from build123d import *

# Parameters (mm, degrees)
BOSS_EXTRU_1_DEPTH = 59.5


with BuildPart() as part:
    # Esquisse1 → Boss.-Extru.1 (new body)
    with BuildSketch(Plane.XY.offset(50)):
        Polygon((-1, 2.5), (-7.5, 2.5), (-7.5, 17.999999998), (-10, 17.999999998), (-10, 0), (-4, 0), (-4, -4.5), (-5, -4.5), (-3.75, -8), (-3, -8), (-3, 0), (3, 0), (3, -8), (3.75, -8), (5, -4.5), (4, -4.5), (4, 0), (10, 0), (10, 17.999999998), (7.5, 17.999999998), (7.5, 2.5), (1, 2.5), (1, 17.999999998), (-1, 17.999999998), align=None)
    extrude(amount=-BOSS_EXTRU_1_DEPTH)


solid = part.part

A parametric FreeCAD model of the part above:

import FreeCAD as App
import Part
import Sketcher

doc = App.newDocument("Part")
body = doc.addObject("PartDesign::Body", "Body")

sketch1 = doc.addObject("Sketcher::SketchObject", "Sketch")
body.addObject(sketch1)
sketch1.AttachmentSupport = (doc.XY_Plane, [""])
sketch1.MapMode = "FlatFace"
sketch1.AttachmentOffset = App.Placement(App.Vector(0, 0, 50), App.Rotation())
sketch1.addGeometry(Part.LineSegment(App.Vector(-1, 2.5, 0), App.Vector(-7.5, 2.5, 0)), False)
sketch1.addGeometry(Part.LineSegment(App.Vector(-7.5, 2.5, 0), App.Vector(-7.5, 18, 0)), False)
sketch1.addGeometry(Part.LineSegment(App.Vector(-7.5, 18, 0), App.Vector(-10, 18, 0)), False)
sketch1.addGeometry(Part.LineSegment(App.Vector(-10, 18, 0), App.Vector(-10, 0, 0)), False)
sketch1.addGeometry(Part.LineSegment(App.Vector(-10, 0, 0), App.Vector(-4, 0, 0)), False)
sketch1.addGeometry(Part.LineSegment(App.Vector(-4, 0, 0), App.Vector(-4, -4.5, 0)), False)
sketch1.addGeometry(Part.LineSegment(App.Vector(-4, -4.5, 0), App.Vector(-5, -4.5, 0)), False)
sketch1.addGeometry(Part.LineSegment(App.Vector(-5, -4.5, 0), App.Vector(-3.8, -8, 0)), False)
sketch1.addGeometry(Part.LineSegment(App.Vector(-3.8, -8, 0), App.Vector(-3, -8, 0)), False)
sketch1.addGeometry(Part.LineSegment(App.Vector(-3, -8, 0), App.Vector(-3, 0, 0)), False)
sketch1.addGeometry(Part.LineSegment(App.Vector(-3, 0, 0), App.Vector(3, 0, 0)), False)
sketch1.addGeometry(Part.LineSegment(App.Vector(3, 0, 0), App.Vector(3, -8, 0)), False)
sketch1.addGeometry(Part.LineSegment(App.Vector(3, -8, 0), App.Vector(3.8, -8, 0)), False)
sketch1.addGeometry(Part.LineSegment(App.Vector(3.8, -8, 0), App.Vector(5, -4.5, 0)), False)
sketch1.addGeometry(Part.LineSegment(App.Vector(5, -4.5, 0), App.Vector(4, -4.5, 0)), False)
sketch1.addGeometry(Part.LineSegment(App.Vector(4, -4.5, 0), App.Vector(4, 0, 0)), False)
sketch1.addGeometry(Part.LineSegment(App.Vector(4, 0, 0), App.Vector(10, 0, 0)), False)
sketch1.addGeometry(Part.LineSegment(App.Vector(10, 0, 0), App.Vector(10, 18, 0)), False)
sketch1.addGeometry(Part.LineSegment(App.Vector(10, 18, 0), App.Vector(7.5, 18, 0)), False)
sketch1.addGeometry(Part.LineSegment(App.Vector(7.5, 18, 0), App.Vector(7.5, 2.5, 0)), False)
sketch1.addGeometry(Part.LineSegment(App.Vector(7.5, 2.5, 0), App.Vector(1, 2.5, 0)), False)
sketch1.addGeometry(Part.LineSegment(App.Vector(1, 2.5, 0), App.Vector(1, 18, 0)), False)
sketch1.addGeometry(Part.LineSegment(App.Vector(1, 18, 0), App.Vector(-1, 18, 0)), False)
sketch1.addGeometry(Part.LineSegment(App.Vector(-1, 18, 0), App.Vector(-1, 2.5, 0)), False)
sketch1.addConstraint(Sketcher.Constraint("Coincident", 0, 2, 1, 1))
sketch1.addConstraint(Sketcher.Constraint("Coincident", 1, 2, 2, 1))
sketch1.addConstraint(Sketcher.Constraint("Coincident", 2, 2, 3, 1))
sketch1.addConstraint(Sketcher.Constraint("Coincident", 3, 2, 4, 1))
sketch1.addConstraint(Sketcher.Constraint("Coincident", 4, 2, 5, 1))
sketch1.addConstraint(Sketcher.Constraint("Coincident", 5, 2, 6, 1))
sketch1.addConstraint(Sketcher.Constraint("Coincident", 6, 2, 7, 1))
sketch1.addConstraint(Sketcher.Constraint("Coincident", 7, 2, 8, 1))
sketch1.addConstraint(Sketcher.Constraint("Coincident", 8, 2, 9, 1))
sketch1.addConstraint(Sketcher.Constraint("Coincident", 9, 2, 10, 1))
sketch1.addConstraint(Sketcher.Constraint("Coincident", 10, 2, 11, 1))
sketch1.addConstraint(Sketcher.Constraint("Coincident", 11, 2, 12, 1))
sketch1.addConstraint(Sketcher.Constraint("Coincident", 12, 2, 13, 1))
sketch1.addConstraint(Sketcher.Constraint("Coincident", 13, 2, 14, 1))
sketch1.addConstraint(Sketcher.Constraint("Coincident", 14, 2, 15, 1))
sketch1.addConstraint(Sketcher.Constraint("Coincident", 15, 2, 16, 1))
sketch1.addConstraint(Sketcher.Constraint("Coincident", 16, 2, 17, 1))
sketch1.addConstraint(Sketcher.Constraint("Coincident", 17, 2, 18, 1))
sketch1.addConstraint(Sketcher.Constraint("Coincident", 18, 2, 19, 1))
sketch1.addConstraint(Sketcher.Constraint("Coincident", 19, 2, 20, 1))
sketch1.addConstraint(Sketcher.Constraint("Coincident", 20, 2, 21, 1))
sketch1.addConstraint(Sketcher.Constraint("Coincident", 21, 2, 22, 1))
sketch1.addConstraint(Sketcher.Constraint("Coincident", 22, 2, 23, 1))
sketch1.addConstraint(Sketcher.Constraint("Coincident", 23, 2, 0, 1))
sketch1.addConstraint(Sketcher.Constraint("Horizontal", 0))
sketch1.addConstraint(Sketcher.Constraint("Vertical", 1))
sketch1.addConstraint(Sketcher.Constraint("Horizontal", 2))
sketch1.addConstraint(Sketcher.Constraint("Vertical", 3))
sketch1.addConstraint(Sketcher.Constraint("Horizontal", 4))
sketch1.addConstraint(Sketcher.Constraint("Vertical", 5))
sketch1.addConstraint(Sketcher.Constraint("Horizontal", 6))
sketch1.addConstraint(Sketcher.Constraint("Horizontal", 8))
sketch1.addConstraint(Sketcher.Constraint("Vertical", 9))
sketch1.addConstraint(Sketcher.Constraint("Horizontal", 10))
sketch1.addConstraint(Sketcher.Constraint("Vertical", 11))
sketch1.addConstraint(Sketcher.Constraint("Horizontal", 12))
sketch1.addConstraint(Sketcher.Constraint("Horizontal", 14))
sketch1.addConstraint(Sketcher.Constraint("Vertical", 15))
sketch1.addConstraint(Sketcher.Constraint("Horizontal", 16))
sketch1.addConstraint(Sketcher.Constraint("Vertical", 17))
sketch1.addConstraint(Sketcher.Constraint("Horizontal", 18))
sketch1.addConstraint(Sketcher.Constraint("Vertical", 19))
sketch1.addConstraint(Sketcher.Constraint("Horizontal", 20))
sketch1.addConstraint(Sketcher.Constraint("Vertical", 21))
sketch1.addConstraint(Sketcher.Constraint("Horizontal", 22))
sketch1.addConstraint(Sketcher.Constraint("Vertical", 23))
sketch1.addConstraint(Sketcher.Constraint("Symmetric", 9, 2, 10, 2, -1, 1))
sketch1.addConstraint(Sketcher.Constraint("Symmetric", 4, 2, 15, 2, -1, 1))
sketch1.addConstraint(Sketcher.Constraint("Symmetric", 7, 2, 12, 2, -2))
sketch1.addConstraint(Sketcher.Constraint("Symmetric", 6, 2, 13, 2, -2))
sketch1.addConstraint(Sketcher.Constraint("Symmetric", 3, 2, 16, 2, -2))
sketch1.addConstraint(Sketcher.Constraint("Symmetric", 1, 2, 18, 2, -2))
sketch1.addConstraint(Sketcher.Constraint("Symmetric", 20, 2, 23, 2, -2))
sketch1.addConstraint(Sketcher.Constraint("Horizontal", 18, 2, 21, 2))
sketch1.addConstraint(Sketcher.Constraint("Equal", 4, 10))
sketch1.addConstraint(Sketcher.Constraint("DistanceX", 4, 1, 4, 2, 6.0))
sketch1.addConstraint(Sketcher.Constraint("DistanceX", 6, 2, 6, 1, 1.0))
sketch1.addConstraint(Sketcher.Constraint("DistanceX", 22, 2, 22, 1, 2.0))
sketch1.addConstraint(Sketcher.Constraint("DistanceY", 3, 2, 3, 1, 18.0))
sketch1.addConstraint(Sketcher.Constraint("DistanceY", 9, 1, 9, 2, 8.0))
sketch1.addConstraint(Sketcher.Constraint("DistanceX", 0, 2, 0, 1, 6.5))
sketch1.addConstraint(Sketcher.Constraint("DistanceX", 2, 2, 2, 1, 2.5))
sketch1.addConstraint(Sketcher.Constraint("DistanceY", 1, 1, 1, 2, 15.5))
sketch1.addConstraint(Sketcher.Constraint("DistanceY", 5, 2, 5, 1, 4.5))
sketch1.addConstraint(Sketcher.Constraint("DistanceX", 8, 1, 8, 2, 0.75))
pad1 = doc.addObject("PartDesign::Pad", "Pad")
body.addObject(pad1)
pad1.Profile = sketch1
pad1.Length = 59.5
pad1.Reversed = True

doc.recompute()
